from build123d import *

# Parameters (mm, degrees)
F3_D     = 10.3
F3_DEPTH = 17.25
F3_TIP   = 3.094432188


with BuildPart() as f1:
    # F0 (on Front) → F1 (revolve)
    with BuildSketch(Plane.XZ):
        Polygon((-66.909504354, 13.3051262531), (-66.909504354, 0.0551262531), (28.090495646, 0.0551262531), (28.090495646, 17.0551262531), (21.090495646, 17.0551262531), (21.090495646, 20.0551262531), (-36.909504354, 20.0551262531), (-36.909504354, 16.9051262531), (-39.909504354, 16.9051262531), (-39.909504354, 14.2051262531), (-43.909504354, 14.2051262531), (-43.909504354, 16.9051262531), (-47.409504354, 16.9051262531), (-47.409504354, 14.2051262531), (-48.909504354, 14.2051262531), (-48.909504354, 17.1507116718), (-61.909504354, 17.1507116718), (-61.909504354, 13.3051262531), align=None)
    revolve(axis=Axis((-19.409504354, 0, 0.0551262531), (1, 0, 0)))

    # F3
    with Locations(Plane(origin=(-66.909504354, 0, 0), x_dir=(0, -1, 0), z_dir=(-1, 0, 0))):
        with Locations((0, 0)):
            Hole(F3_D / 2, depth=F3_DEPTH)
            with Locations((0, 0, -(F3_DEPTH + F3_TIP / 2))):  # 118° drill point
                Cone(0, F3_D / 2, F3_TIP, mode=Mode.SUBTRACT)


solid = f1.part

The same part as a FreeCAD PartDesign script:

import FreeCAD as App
import Part
import Sketcher
from FreeCAD import Vector

doc = App.newDocument("Part")
body = doc.addObject("PartDesign::Body", "Body")

# Sketch on XZ plane
sketch1 = body.newObject("Sketcher::SketchObject", "Sketch")
sketch1.AttachmentSupport = (doc.getObject("XZ_Plane"), [""])
sketch1.MapMode = "FlatFace"
sketch1.addGeometry(Part.LineSegment(Vector(-66.9, 13.3, 0), Vector(-66.9, 0.1, 0)), False)
sketch1.addGeometry(Part.LineSegment(Vector(-66.9, 0.1, 0), Vector(28.1, 0.1, 0)), False)
sketch1.addGeometry(Part.LineSegment(Vector(28.1, 0.1, 0), Vector(28.1, 17.1, 0)), False)
sketch1.addGeometry(Part.LineSegment(Vector(28.1, 17.1, 0), Vector(21.1, 17.1, 0)), False)
sketch1.addGeometry(Part.LineSegment(Vector(21.1, 17.1, 0), Vector(21.1, 20.1, 0)), False)
sketch1.addGeometry(Part.LineSegment(Vector(21.1, 20.1, 0), Vector(-36.9, 20.1, 0)), False)
sketch1.addGeometry(Part.LineSegment(Vector(-36.9, 20.1, 0), Vector(-36.9, 16.9, 0)), False)
sketch1.addGeometry(Part.LineSegment(Vector(-36.9, 16.9, 0), Vector(-39.9, 16.9, 0)), False)
sketch1.addGeometry(Part.LineSegment(Vector(-39.9, 16.9, 0), Vector(-39.9, 14.2, 0)), False)
sketch1.addGeometry(Part.LineSegment(Vector(-39.9, 14.2, 0), Vector(-43.9, 14.2, 0)), False)
sketch1.addGeometry(Part.LineSegment(Vector(-43.9, 14.2, 0), Vector(-43.9, 16.9, 0)), False)
sketch1.addGeometry(Part.LineSegment(Vector(-43.9, 16.9, 0), Vector(-47.4, 16.9, 0)), False)
sketch1.addGeometry(Part.LineSegment(Vector(-47.4, 16.9, 0), Vector(-47.4, 14.2, 0)), False)
sketch1.addGeometry(Part.LineSegment(Vector(-47.4, 14.2, 0), Vector(-48.9, 14.2, 0)), False)
sketch1.addGeometry(Part.LineSegment(Vector(-48.9, 14.2, 0), Vector(-48.9, 17.2, 0)), False)
sketch1.addGeometry(Part.LineSegment(Vector(-48.9, 17.2, 0), Vector(-61.9, 17.2, 0)), False)
sketch1.addGeometry(Part.LineSegment(Vector(-61.9, 17.2, 0), Vector(-61.9, 13.3, 0)), False)
sketch1.addGeometry(Part.LineSegment(Vector(-61.9, 13.3, 0), Vector(-66.9, 13.3, 0)), False)
sketch1.addGeometry(Part.LineSegment(Vector(-66.9, 0.1, 0), Vector(28.1, 0.1, 0)), True)  # axis
sketch1.addConstraint(Sketcher.Constraint("Coincident", 0, 2, 1, 1))
sketch1.addConstraint(Sketcher.Constraint("Coincident", 1, 2, 2, 1))
sketch1.addConstraint(Sketcher.Constraint("Coincident", 2, 2, 3, 1))
sketch1.addConstraint(Sketcher.Constraint("Coincident", 3, 2, 4, 1))
sketch1.addConstraint(Sketcher.Constraint("Coincident", 4, 2, 5, 1))
sketch1.addConstraint(Sketcher.Constraint("Coincident", 5, 2, 6, 1))
sketch1.addConstraint(Sketcher.Constraint("Coincident", 6, 2, 7, 1))
sketch1.addConstraint(Sketcher.Constraint("Coincident", 7, 2, 8, 1))
sketch1.addConstraint(Sketcher.Constraint("Coincident", 8, 2, 9, 1))
sketch1.addConstraint(Sketcher.Constraint("Coincident", 9, 2, 10, 1))
sketch1.addConstraint(Sketcher.Constraint("Coincident", 10, 2, 11, 1))
sketch1.addConstraint(Sketcher.Constraint("Coincident", 11, 2, 12, 1))
sketch1.addConstraint(Sketcher.Constraint("Coincident", 12, 2, 13, 1))
sketch1.addConstraint(Sketcher.Constraint("Coincident", 13, 2, 14, 1))
sketch1.addConstraint(Sketcher.Constraint("Coincident", 14, 2, 15, 1))
sketch1.addConstraint(Sketcher.Constraint("Coincident", 15, 2, 16, 1))
sketch1.addConstraint(Sketcher.Constraint("Coincident", 16, 2, 17, 1))
sketch1.addConstraint(Sketcher.Constraint("Coincident", 17, 2, 0, 1))
sketch1.addConstraint(Sketcher.Constraint("Vertical", 0))
sketch1.addConstraint(Sketcher.Constraint("Horizontal", 1))
sketch1.addConstraint(Sketcher.Constraint("Vertical", 2))
sketch1.addConstraint(Sketcher.Constraint("Horizontal", 3))
sketch1.addConstraint(Sketcher.Constraint("Vertical", 4))
sketch1.addConstraint(Sketcher.Constraint("Horizontal", 5))
sketch1.addConstraint(Sketcher.Constraint("Vertical", 6))
sketch1.addConstraint(Sketcher.Constraint("Horizontal", 7))
sketch1.addConstraint(Sketcher.Constraint("Vertical", 8))
sketch1.addConstraint(Sketcher.Constraint("Horizontal", 9))
sketch1.addConstraint(Sketcher.Constraint("Vertical", 10))
sketch1.addConstraint(Sketcher.Constraint("Horizontal", 11))
sketch1.addConstraint(Sketcher.Constraint("Vertical", 12))
sketch1.addConstraint(Sketcher.Constraint("Horizontal", 13))
sketch1.addConstraint(Sketcher.Constraint("Vertical", 14))
sketch1.addConstraint(Sketcher.Constraint("Horizontal", 15))
sketch1.addConstraint(Sketcher.Constraint("Vertical", 16))
sketch1.addConstraint(Sketcher.Constraint("Horizontal", 17))
sketch1.addConstraint(Sketcher.Constraint("Horizontal", 18))
sketch1.addConstraint(Sketcher.Constraint("Coincident", 18, 1, 0, 2))
sketch1.addConstraint(Sketcher.Constraint("Horizontal", 7, 2, 10, 2))
sketch1.addConstraint(Sketcher.Constraint("Horizontal", 9, 2, 12, 2))
sketch1.addConstraint(Sketcher.Constraint("Vertical", 2, 2, 18, 2))
sketch1.addConstraint(Sketcher.Constraint("Equal", 7, 4))
sketch1.addConstraint(Sketcher.Constraint("DistanceX", 1, 1, 1, 2, 95.0))
sketch1.addConstraint(Sketcher.Constraint("DistanceX", 3, 2, 3, 1, 7.0))
sketch1.addConstraint(Sketcher.Constraint("DistanceX", 5, 2, 5, 1, 58.0))
sketch1.addConstraint(Sketcher.Constraint("DistanceX", 7, 2, 7, 1, 3.0))
sketch1.addConstraint(Sketcher.Constraint("DistanceX", 9, 2, 9, 1, 4.0))
sketch1.addConstraint(Sketcher.Constraint("DistanceX", 15, 2, 15, 1, 13.0))
sketch1.addConstraint(Sketcher.Constraint("DistanceX", 17, 2, 17, 1, 5.0))
sketch1.addConstraint(Sketcher.Constraint("DistanceY", 2, 1, 2, 2, 17.0))
sketch1.addConstraint(Sketcher.Constraint("DistanceX", 11, 2, 11, 1, 3.5))
sketch1.addConstraint(Sketcher.Constraint("DistanceY", 8, 2, 8, 1, 2.7))
sketch1.addConstraint(Sketcher.Constraint("DistanceY", 0, 2, 0, 1, 13.25))
sketch1.addConstraint(Sketcher.Constraint("DistanceY", 6, 2, 6, 1, 3.15))
sketch1.addConstraint(Sketcher.Constraint("DistanceY", 14, 1, 14, 2, 2.945585))
sketch1.addConstraint(Sketcher.Constraint("DistanceY", -1, 1, 14, 2, 17.150712))
sketch1.addConstraint(Sketcher.Constraint("DistanceX", 0, 2, -1, 1, 66.909504))
revolution = body.newObject("PartDesign::Revolution", "Revolution")
revolution.Profile = sketch1
revolution.ReferenceAxis = (sketch1, ["Axis0"])
revolution.Angle = 360

# Sketch on YZ plane
sketch2 = body.newObject("Sketcher::SketchObject", "Sketch001")
sketch2.AttachmentSupport = (doc.getObject("YZ_Plane"), [""])
sketch2.MapMode = "FlatFace"
sketch2.AttachmentOffset = App.Placement(Vector(0, 0, -66.909504), App.Rotation())
sketch2.addGeometry(Part.Circle(Vector(0, 0, 0), Vector(0, 0, 1), 5), False)
sketch2.addConstraint(Sketcher.Constraint("Coincident", 0, 3, -1, 1))
sketch2.addConstraint(Sketcher.Constraint("Diameter", 0, 10.3))
doc.recompute()
hole = body.newObject("PartDesign::Hole", "Hole")
hole.Profile = sketch2
hole.ThreadType = "None"
hole.Diameter = 10.3
hole.DepthType = "Dimension"
hole.Depth = 17.25
hole.DrillPoint = "Angled"
hole.DrillPointAngle = 118
hole.Reversed = True

doc.recompute()
